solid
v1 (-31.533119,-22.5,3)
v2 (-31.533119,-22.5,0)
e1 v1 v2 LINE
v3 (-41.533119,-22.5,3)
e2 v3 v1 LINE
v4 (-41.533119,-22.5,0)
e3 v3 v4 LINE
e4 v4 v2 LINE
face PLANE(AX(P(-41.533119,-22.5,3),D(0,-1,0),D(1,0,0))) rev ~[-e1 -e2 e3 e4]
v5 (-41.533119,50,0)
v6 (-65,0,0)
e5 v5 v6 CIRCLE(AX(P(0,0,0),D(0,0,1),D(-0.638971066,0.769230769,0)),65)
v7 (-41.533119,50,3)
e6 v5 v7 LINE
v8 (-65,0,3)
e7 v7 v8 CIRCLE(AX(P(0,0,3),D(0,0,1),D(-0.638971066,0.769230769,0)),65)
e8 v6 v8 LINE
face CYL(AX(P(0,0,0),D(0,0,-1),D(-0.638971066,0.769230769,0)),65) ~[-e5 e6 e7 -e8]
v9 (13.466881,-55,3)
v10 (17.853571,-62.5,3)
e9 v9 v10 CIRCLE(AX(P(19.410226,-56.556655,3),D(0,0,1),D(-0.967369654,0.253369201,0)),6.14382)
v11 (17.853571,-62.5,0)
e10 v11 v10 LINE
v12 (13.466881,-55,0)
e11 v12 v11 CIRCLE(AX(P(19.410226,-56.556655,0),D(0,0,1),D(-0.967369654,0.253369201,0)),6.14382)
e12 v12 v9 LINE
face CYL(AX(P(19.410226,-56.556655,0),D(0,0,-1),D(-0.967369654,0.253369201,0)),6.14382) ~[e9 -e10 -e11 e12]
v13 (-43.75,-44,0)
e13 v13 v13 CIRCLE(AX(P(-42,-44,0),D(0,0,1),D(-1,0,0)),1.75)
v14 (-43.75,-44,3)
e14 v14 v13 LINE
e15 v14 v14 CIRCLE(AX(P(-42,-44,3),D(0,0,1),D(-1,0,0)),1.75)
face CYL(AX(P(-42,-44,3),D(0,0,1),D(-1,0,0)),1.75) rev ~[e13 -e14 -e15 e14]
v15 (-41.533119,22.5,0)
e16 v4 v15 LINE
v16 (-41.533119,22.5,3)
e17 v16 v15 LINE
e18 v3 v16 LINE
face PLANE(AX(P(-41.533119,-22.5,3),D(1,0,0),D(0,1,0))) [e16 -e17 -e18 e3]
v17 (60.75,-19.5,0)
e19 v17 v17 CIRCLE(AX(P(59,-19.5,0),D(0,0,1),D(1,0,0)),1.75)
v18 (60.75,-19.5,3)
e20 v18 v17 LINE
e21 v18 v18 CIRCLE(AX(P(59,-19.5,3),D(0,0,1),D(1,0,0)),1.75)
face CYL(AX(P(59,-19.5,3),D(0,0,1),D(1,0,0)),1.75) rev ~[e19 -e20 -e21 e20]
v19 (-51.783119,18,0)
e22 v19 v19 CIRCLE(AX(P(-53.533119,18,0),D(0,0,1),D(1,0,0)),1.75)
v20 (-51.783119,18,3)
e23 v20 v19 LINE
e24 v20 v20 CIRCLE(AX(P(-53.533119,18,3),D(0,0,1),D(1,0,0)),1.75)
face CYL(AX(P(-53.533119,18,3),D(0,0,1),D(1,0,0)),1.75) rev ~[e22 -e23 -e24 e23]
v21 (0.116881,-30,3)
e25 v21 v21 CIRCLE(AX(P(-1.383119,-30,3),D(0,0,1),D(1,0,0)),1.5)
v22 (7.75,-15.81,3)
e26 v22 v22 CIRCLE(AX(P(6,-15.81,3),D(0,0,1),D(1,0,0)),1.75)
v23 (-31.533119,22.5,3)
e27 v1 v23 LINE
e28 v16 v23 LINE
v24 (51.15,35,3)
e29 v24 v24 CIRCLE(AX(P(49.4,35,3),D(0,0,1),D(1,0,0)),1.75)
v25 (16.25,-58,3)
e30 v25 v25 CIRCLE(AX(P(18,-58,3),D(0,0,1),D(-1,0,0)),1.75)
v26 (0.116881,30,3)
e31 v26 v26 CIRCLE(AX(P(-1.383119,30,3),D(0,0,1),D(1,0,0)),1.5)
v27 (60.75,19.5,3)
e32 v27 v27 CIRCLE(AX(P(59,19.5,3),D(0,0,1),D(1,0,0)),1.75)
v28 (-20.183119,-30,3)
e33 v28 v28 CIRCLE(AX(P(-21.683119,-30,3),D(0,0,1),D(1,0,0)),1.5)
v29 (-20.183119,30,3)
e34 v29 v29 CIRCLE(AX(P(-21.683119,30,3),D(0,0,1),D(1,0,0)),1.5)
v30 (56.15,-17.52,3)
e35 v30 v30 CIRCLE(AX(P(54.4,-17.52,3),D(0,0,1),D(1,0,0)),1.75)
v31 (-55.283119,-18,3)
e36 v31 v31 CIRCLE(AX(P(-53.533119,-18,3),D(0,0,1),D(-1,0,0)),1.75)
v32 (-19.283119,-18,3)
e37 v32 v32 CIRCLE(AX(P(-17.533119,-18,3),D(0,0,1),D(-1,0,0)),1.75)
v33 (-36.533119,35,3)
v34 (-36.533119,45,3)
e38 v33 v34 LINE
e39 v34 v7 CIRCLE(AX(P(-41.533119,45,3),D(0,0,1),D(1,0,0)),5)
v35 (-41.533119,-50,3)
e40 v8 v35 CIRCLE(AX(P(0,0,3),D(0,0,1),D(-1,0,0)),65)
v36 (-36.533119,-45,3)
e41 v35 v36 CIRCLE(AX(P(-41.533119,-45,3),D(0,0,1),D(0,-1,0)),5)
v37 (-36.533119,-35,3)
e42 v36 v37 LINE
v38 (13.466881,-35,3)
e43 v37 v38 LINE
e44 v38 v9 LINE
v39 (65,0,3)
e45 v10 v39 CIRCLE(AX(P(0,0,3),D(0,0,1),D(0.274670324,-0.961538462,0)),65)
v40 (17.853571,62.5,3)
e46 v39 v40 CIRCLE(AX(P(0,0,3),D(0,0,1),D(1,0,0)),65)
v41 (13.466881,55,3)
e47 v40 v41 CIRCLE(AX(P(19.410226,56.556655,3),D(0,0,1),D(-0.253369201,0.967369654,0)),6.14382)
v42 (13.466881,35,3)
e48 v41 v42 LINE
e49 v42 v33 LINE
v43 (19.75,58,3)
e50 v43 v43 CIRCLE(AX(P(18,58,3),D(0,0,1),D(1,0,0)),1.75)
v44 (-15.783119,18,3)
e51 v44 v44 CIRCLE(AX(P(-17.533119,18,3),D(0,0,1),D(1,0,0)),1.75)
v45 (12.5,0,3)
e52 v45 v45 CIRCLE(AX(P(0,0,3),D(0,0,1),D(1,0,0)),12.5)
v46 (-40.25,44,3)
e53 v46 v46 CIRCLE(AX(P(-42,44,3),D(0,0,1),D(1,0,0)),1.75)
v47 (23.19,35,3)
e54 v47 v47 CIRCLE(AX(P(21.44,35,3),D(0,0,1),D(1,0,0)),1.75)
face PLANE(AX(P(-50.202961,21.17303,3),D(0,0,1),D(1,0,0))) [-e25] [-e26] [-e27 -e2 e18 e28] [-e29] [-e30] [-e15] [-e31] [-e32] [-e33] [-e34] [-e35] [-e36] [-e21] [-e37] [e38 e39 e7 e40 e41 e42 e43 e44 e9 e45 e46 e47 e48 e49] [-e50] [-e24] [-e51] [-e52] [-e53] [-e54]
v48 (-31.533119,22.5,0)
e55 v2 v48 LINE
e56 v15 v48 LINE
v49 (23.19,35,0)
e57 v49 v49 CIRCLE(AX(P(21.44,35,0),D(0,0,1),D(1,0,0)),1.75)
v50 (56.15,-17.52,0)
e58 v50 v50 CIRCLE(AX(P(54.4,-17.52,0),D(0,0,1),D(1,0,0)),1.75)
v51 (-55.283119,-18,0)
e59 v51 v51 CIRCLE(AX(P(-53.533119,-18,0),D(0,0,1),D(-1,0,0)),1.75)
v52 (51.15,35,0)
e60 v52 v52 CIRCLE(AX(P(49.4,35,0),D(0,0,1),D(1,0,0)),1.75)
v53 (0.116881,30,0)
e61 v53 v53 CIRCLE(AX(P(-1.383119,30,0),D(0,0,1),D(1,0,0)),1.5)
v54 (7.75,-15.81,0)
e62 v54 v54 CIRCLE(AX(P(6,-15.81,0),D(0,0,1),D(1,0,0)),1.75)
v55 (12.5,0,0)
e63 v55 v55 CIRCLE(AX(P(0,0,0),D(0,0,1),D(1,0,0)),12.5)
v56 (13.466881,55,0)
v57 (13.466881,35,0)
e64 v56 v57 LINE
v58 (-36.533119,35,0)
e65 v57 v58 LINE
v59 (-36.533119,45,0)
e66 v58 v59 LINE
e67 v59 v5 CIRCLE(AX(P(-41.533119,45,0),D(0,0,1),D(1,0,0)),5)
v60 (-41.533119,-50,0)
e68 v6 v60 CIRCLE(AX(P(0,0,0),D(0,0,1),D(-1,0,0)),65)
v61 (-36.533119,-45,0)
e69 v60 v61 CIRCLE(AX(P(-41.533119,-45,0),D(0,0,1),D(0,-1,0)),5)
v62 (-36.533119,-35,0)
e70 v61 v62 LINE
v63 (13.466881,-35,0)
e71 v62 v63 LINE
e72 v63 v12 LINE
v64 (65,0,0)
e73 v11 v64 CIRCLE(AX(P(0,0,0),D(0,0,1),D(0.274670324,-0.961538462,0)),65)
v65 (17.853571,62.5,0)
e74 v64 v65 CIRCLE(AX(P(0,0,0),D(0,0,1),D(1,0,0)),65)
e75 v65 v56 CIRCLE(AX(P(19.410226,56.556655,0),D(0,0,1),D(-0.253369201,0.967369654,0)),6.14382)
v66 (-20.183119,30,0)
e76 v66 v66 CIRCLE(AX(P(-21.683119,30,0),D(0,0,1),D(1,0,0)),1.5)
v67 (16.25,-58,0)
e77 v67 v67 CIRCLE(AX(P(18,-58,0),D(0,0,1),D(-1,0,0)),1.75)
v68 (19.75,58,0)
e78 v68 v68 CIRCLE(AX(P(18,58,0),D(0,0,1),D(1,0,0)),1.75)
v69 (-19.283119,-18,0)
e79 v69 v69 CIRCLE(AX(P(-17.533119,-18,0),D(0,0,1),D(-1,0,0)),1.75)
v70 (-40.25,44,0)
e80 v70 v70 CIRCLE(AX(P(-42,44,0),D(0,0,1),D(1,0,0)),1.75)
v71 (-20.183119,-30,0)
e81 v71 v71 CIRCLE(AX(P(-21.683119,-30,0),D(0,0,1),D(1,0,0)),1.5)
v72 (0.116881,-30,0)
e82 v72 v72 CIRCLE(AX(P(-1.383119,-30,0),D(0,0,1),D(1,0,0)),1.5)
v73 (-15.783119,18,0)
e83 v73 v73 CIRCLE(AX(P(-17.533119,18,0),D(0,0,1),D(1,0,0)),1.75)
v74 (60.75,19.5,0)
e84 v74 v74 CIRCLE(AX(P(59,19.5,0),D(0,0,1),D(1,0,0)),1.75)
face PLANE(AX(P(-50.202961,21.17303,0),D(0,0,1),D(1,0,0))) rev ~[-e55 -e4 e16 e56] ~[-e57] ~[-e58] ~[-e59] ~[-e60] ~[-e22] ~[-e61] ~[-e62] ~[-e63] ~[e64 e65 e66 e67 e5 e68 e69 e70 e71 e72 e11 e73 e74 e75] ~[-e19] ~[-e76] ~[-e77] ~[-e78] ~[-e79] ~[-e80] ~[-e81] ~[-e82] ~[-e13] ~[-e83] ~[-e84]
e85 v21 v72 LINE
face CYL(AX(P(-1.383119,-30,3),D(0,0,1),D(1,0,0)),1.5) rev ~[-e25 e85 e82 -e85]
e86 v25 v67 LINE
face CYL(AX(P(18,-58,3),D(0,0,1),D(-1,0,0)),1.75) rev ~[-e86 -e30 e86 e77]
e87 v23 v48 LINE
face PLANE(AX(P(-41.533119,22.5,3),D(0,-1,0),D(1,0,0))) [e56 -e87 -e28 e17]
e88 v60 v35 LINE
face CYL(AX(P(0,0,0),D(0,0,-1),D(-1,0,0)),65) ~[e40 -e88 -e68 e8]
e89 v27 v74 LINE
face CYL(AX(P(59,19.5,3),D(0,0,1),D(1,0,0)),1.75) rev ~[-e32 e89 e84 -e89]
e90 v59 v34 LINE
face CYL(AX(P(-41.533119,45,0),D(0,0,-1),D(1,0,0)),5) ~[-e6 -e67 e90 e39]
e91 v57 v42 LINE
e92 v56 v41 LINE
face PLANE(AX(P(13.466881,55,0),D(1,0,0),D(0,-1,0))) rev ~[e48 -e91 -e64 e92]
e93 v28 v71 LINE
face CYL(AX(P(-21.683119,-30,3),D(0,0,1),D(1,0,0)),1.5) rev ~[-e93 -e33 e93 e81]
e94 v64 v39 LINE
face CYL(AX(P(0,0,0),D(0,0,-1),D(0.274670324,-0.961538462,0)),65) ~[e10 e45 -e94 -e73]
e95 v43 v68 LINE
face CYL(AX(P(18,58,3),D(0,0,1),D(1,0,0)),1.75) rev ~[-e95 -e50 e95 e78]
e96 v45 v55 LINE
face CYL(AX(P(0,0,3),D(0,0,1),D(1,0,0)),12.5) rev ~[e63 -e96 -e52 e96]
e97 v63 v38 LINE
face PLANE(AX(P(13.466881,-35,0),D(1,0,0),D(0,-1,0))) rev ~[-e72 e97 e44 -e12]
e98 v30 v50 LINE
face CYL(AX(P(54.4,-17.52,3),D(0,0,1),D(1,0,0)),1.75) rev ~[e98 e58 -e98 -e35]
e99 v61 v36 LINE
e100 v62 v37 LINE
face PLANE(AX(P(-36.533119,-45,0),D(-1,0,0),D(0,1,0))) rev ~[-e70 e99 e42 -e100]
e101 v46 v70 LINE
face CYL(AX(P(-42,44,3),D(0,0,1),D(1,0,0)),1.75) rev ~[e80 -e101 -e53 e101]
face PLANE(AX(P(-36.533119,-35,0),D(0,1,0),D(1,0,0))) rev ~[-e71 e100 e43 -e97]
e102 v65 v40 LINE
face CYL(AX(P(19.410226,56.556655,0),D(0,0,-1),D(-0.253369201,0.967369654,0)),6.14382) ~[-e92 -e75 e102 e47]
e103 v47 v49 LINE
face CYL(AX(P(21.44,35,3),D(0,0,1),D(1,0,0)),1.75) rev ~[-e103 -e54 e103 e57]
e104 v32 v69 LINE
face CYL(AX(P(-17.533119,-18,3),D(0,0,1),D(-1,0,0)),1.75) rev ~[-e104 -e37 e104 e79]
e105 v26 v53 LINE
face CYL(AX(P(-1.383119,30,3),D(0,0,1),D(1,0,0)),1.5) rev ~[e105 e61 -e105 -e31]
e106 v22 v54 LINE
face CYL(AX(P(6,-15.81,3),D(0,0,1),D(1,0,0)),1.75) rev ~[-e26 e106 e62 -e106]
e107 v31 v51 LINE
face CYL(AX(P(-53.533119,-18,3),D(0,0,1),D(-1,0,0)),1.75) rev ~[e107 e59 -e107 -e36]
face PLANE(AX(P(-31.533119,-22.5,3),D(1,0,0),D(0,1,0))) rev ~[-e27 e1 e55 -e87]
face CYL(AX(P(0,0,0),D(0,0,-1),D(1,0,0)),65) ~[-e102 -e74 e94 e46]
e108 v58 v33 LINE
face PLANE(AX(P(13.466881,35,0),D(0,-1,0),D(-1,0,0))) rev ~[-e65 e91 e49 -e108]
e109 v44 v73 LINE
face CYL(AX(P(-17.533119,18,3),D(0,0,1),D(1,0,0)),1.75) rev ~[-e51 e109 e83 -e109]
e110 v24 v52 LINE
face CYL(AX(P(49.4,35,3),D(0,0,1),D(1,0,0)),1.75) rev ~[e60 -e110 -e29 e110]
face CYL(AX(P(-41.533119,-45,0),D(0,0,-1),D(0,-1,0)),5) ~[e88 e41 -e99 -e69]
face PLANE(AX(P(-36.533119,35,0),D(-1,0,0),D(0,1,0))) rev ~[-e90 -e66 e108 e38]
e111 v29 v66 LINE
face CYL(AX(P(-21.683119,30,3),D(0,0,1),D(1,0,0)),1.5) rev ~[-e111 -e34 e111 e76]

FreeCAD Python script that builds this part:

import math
import FreeCAD as App
import Part
import Sketcher

doc = App.newDocument("Part")
body = doc.addObject("PartDesign::Body", "Body")

# Sketch on XY plane
sketch1 = doc.addObject("Sketcher::SketchObject", "Sketch")
body.addObject(sketch1)
sketch1.AttachmentSupport = (doc.XY_Plane, [""])
sketch1.MapMode = "FlatFace"
sketch1.addGeometry([
    Part.LineSegment(App.Vector(-37, 35, 0), App.Vector(-37, 45, 0)),  # 0
    Part.ArcOfCircle(Part.Circle(App.Vector(-42, 45, 0), App.Vector(0, 0, 1), 5), math.radians(0), math.radians(90)),  # 1
    Part.ArcOfCircle(Part.Circle(App.Vector(0, 0, 0), App.Vector(0, 0, 1), 65), math.radians(130), math.radians(180)),  # 2
    Part.ArcOfCircle(Part.Circle(App.Vector(0, 0, 0), App.Vector(0, 0, 1), 65), math.radians(-180), math.radians(-130)),  # 3
    Part.ArcOfCircle(Part.Circle(App.Vector(-42, -45, 0), App.Vector(0, 0, 1), 5), math.radians(-90), math.radians(0)),  # 4
    Part.LineSegment(App.Vector(-37, -45, 0), App.Vector(-37, -35, 0)),  # 5
    Part.LineSegment(App.Vector(-37, -35, 0), App.Vector(13, -35, 0)),  # 6
    Part.LineSegment(App.Vector(13, -35, 0), App.Vector(13, -55, 0)),  # 7
    Part.ArcOfCircle(Part.Circle(App.Vector(19, -57, 0), App.Vector(0, 0, 1), 6), math.radians(165), math.radians(255)),  # 8
    Part.ArcOfCircle(Part.Circle(App.Vector(0, 0, 0), App.Vector(0, 0, 1), 65), math.radians(-74), math.radians(0)),  # 9
    Part.ArcOfCircle(Part.Circle(App.Vector(0, 0, 0), App.Vector(0, 0, 1), 65), math.radians(0), math.radians(74)),  # 10
    Part.ArcOfCircle(Part.Circle(App.Vector(19, 57, 0), App.Vector(0, 0, 1), 6), math.radians(105), math.radians(195)),  # 11
    Part.LineSegment(App.Vector(13, 55, 0), App.Vector(13, 35, 0)),  # 12
    Part.LineSegment(App.Vector(13, 35, 0), App.Vector(-37, 35, 0)),  # 13
], False)
sketch1.addConstraint([
    Sketcher.Constraint("Tangent", 0, 2, 1, 1),
    Sketcher.Constraint("Coincident", 1, 2, 2, 1),
    Sketcher.Constraint("Tangent", 2, 2, 3, 1),
    Sketcher.Constraint("Coincident", 3, 2, 4, 1),
    Sketcher.Constraint("Tangent", 4, 2, 5, 1),
    Sketcher.Constraint("Coincident", 5, 2, 6, 1),
    Sketcher.Constraint("Coincident", 6, 2, 7, 1),
    Sketcher.Constraint("Coincident", 7, 2, 8, 1),
    Sketcher.Constraint("Coincident", 8, 2, 9, 1),
    Sketcher.Constraint("Tangent", 9, 2, 10, 1),
    Sketcher.Constraint("Coincident", 10, 2, 11, 1),
    Sketcher.Constraint("Coincident", 11, 2, 12, 1),
    Sketcher.Constraint("Coincident", 12, 2, 13, 1),
    Sketcher.Constraint("Coincident", 13, 2, 0, 1),
    Sketcher.Constraint("Vertical", 0),
    Sketcher.Constraint("Vertical", 5),
    Sketcher.Constraint("Horizontal", 6),
    Sketcher.Constraint("Vertical", 7),
    Sketcher.Constraint("Vertical", 12),
    Sketcher.Constraint("Horizontal", 13),
    Sketcher.Constraint("Coincident", 2, 3, -1, 1),
    Sketcher.Constraint("Coincident", 9, 3, -1, 1),
    Sketcher.Constraint("Equal", 2, 3),
    Sketcher.Constraint("Equal", 1, 4),
    Sketcher.Constraint("Equal", 3, 9),
    Sketcher.Constraint("Equal", 9, 10),
    Sketcher.Constraint("Equal", 8, 11),
    Sketcher.Constraint("Symmetric", 1, 3, 4, 3, -1),
    Sketcher.Constraint("Symmetric", 8, 3, 11, 3, -1),
    Sketcher.Constraint("Symmetric", 6, 2, 12, 2, -1),
    Sketcher.Constraint("PointOnObject", 2, 2, -1),
    Sketcher.Constraint("PointOnObject", 9, 2, -1),
    Sketcher.Constraint("Vertical", 4, 3, 1, 2),
    Sketcher.Constraint("Radius", 1, 5.0),
    Sketcher.Constraint("Radius", 2, 65.0),
    Sketcher.Constraint("DistanceX", 6, 1, 6, 2, 50.0),
    Sketcher.Constraint("DistanceY", 0, 1, 0, 2, 10.0),
    Sketcher.Constraint("DistanceY", 7, 2, 7, 1, 20.0),
    Sketcher.Constraint("DistanceY", -1, 1, 1, 3, 45.0),
    Sketcher.Constraint("DistanceY", 8, 2, -1, 1, 62.5),
    Sketcher.Constraint("Radius", 8, 6.14382),
])
pad1 = doc.addObject("PartDesign::Pad", "Pad")
body.addObject(pad1)
pad1.Profile = sketch1
pad1.Length = 3

# Sketch on XY plane
sketch2 = doc.addObject("Sketcher::SketchObject", "Sketch001")
body.addObject(sketch2)
sketch2.AttachmentSupport = (doc.XY_Plane, [""])
sketch2.MapMode = "FlatFace"
sketch2.AttachmentOffset = App.Placement(App.Vector(0, 0, 3), App.Rotation())
sketch2.addGeometry([
    Part.Circle(App.Vector(0, 0, 0), App.Vector(0, 0, 1), 12),  # 0
    Part.LineSegment(App.Vector(-42, 22, 0), App.Vector(-42, -22, 0)),  # 1
    Part.LineSegment(App.Vector(-42, -22, 0), App.Vector(-32, -22, 0)),  # 2
    Part.LineSegment(App.Vector(-32, -22, 0), App.Vector(-32, 22, 0)),  # 3
    Part.LineSegment(App.Vector(-32, 22, 0), App.Vector(-42, 22, 0)),  # 4
], False)
sketch2.addConstraint([
    Sketcher.Constraint("Coincident", 1, 2, 2, 1),
    Sketcher.Constraint("Coincident", 2, 2, 3, 1),
    Sketcher.Constraint("Coincident", 3, 2, 4, 1),
    Sketcher.Constraint("Coincident", 4, 2, 1, 1),
    Sketcher.Constraint("Vertical", 1),
    Sketcher.Constraint("Horizontal", 2),
    Sketcher.Constraint("Vertical", 3),
    Sketcher.Constraint("Horizontal", 4),
    Sketcher.Constraint("Coincident", 0, 3, -1, 1),
    Sketcher.Constraint("Diameter", 0, 25.0),
    Sketcher.Constraint("DistanceX", 2, 1, 2, 2, 10.0),
    Sketcher.Constraint("DistanceY", 1, 2, 1, 1, 45.0),
    Sketcher.Constraint("DistanceY", 1, 2, -1, 1, 22.5),
    Sketcher.Constraint("DistanceX", 1, 2, -1, 1, 41.533119),
])
pocket1 = doc.addObject("PartDesign::Pocket", "Pocket")
body.addObject(pocket1)
pocket1.Profile = sketch2
pocket1.Length = 3

# Sketch on XY plane
sketch3 = doc.addObject("Sketcher::SketchObject", "Sketch002")
body.addObject(sketch3)
sketch3.AttachmentSupport = (doc.XY_Plane, [""])
sketch3.MapMode = "FlatFace"
sketch3.AttachmentOffset = App.Placement(App.Vector(0, 0, 3), App.Rotation())
sketch3.addGeometry([
    Part.Circle(App.Vector(-53.5, 18, 0), App.Vector(0, 0, 1), 1.8),
    Part.Circle(App.Vector(-17.5, 18, 0), App.Vector(0, 0, 1), 1.8),
    Part.Circle(App.Vector(-17.5, -18, 0), App.Vector(0, 0, 1), 1.8),
    Part.Circle(App.Vector(-53.5, -18, 0), App.Vector(0, 0, 1), 1.8),
], False)
sketch3.addConstraint([
    Sketcher.Constraint("Equal", 0, 1),
    Sketcher.Constraint("Equal", 1, 2),
    Sketcher.Constraint("Equal", 2, 3),
    Sketcher.Constraint("Symmetric", 1, 3, 2, 3, -1),
    Sketcher.Constraint("Symmetric", 0, 3, 3, 3, -1),
    Sketcher.Constraint("Horizontal", 0, 3, 1, 3),
    Sketcher.Constraint("Diameter", 0, 3.5),
    Sketcher.Constraint("DistanceY", -1, 1, 0, 3, 18.0),
    Sketcher.Constraint("DistanceX", 0, 3, 1, 3, 36.0),
    Sketcher.Constraint("DistanceX", 0, 3, -1, 1, 53.533119),
])
pocket2 = doc.addObject("PartDesign::Pocket", "Pocket001")
body.addObject(pocket2)
pocket2.Profile = sketch3
pocket2.Length = 3

# Sketch on XY plane
sketch4 = doc.addObject("Sketcher::SketchObject", "Sketch003")
body.addObject(sketch4)
sketch4.AttachmentSupport = (doc.XY_Plane, [""])
sketch4.MapMode = "FlatFace"
sketch4.AttachmentOffset = App.Placement(App.Vector(0, 0, 3), App.Rotation())
sketch4.addGeometry([
    Part.Circle(App.Vector(-42, 44, 0), App.Vector(0, 0, 1), 1.8),
    Part.Circle(App.Vector(18, 58, 0), App.Vector(0, 0, 1), 1.8),
    Part.Circle(App.Vector(18, -58, 0), App.Vector(0, 0, 1), 1.8),
    Part.Circle(App.Vector(-42, -44, 0), App.Vector(0, 0, 1), 1.8),
], False)
sketch4.addConstraint([
    Sketcher.Constraint("Equal", 0, 1),
    Sketcher.Constraint("Equal", 1, 2),
    Sketcher.Constraint("Equal", 2, 3),
    Sketcher.Constraint("Symmetric", 1, 3, 2, 3, -1),
    Sketcher.Constraint("Symmetric", 0, 3, 3, 3, -1),
    Sketcher.Constraint("Diameter", 0, 3.5),
    Sketcher.Constraint("DistanceX", 0, 3, -1, 1, 42.0),
    Sketcher.Constraint("DistanceY", -1, 1, 0, 3, 44.0),
    Sketcher.Constraint("DistanceX", -1, 1, 1, 3, 18.0),
    Sketcher.Constraint("DistanceY", -1, 1, 1, 3, 58.0),
])
pocket3 = doc.addObject("PartDesign::Pocket", "Pocket002")
body.addObject(pocket3)
pocket3.Profile = sketch4
pocket3.Length = 3

# Sketch on XY plane
sketch5 = doc.addObject("Sketcher::SketchObject", "Sketch004")
body.addObject(sketch5)
sketch5.AttachmentSupport = (doc.XY_Plane, [""])
sketch5.MapMode = "FlatFace"
sketch5.AttachmentOffset = App.Placement(App.Vector(0, 0, 3), App.Rotation())
sketch5.addGeometry([
    Part.Circle(App.Vector(6, -15.8, 0), App.Vector(0, 0, 1), 1.8),
    Part.Circle(App.Vector(54.4, -17.5, 0), App.Vector(0, 0, 1), 1.8),
    Part.Circle(App.Vector(49.4, 35, 0), App.Vector(0, 0, 1), 1.8),
    Part.Circle(App.Vector(21.4, 35, 0), App.Vector(0, 0, 1), 1.8),
], False)
sketch5.addConstraint([
    Sketcher.Constraint("Equal", 0, 1),
    Sketcher.Constraint("Equal", 1, 2),
    Sketcher.Constraint("Equal", 2, 3),
    Sketcher.Constraint("Horizontal", 2, 3, 3, 3),
    Sketcher.Constraint("Diameter", 0, 3.5),
    Sketcher.Constraint("DistanceX", -1, 1, 0, 3, 6.0),
    Sketcher.Constraint("DistanceY", -1, 1, 2, 3, 35.0),
    Sketcher.Constraint("DistanceX", 2, 3, 1, 3, 5.0),
    Sketcher.Constraint("DistanceX", -1, 1, 1, 3, 54.4),
    Sketcher.Constraint("DistanceY", 0, 3, -1, 1, 15.81),
    Sketcher.Constraint("DistanceY", 1, 3, -1, 1, 17.52),
    Sketcher.Constraint("DistanceX", -1, 1, 3, 3, 21.44),
])
pocket4 = doc.addObject("PartDesign::Pocket", "Pocket003")
body.addObject(pocket4)
pocket4.Profile = sketch5
pocket4.Length = 3

# Sketch on XY plane
sketch6 = doc.addObject("Sketcher::SketchObject", "Sketch005")
body.addObject(sketch6)
sketch6.AttachmentSupport = (doc.XY_Plane, [""])
sketch6.MapMode = "FlatFace"
sketch6.AttachmentOffset = App.Placement(App.Vector(0, 0, 3), App.Rotation())
sketch6.addGeometry([
    Part.Circle(App.Vector(-21.7, -30, 0), App.Vector(0, 0, 1), 1.5),
    Part.Circle(App.Vector(-1.4, -30, 0), App.Vector(0, 0, 1), 1.5),
    Part.Circle(App.Vector(-1.4, 30, 0), App.Vector(0, 0, 1), 1.5),
    Part.Circle(App.Vector(-21.7, 30, 0), App.Vector(0, 0, 1), 1.5),
], False)
sketch6.addConstraint([
    Sketcher.Constraint("Equal", 0, 1),
    Sketcher.Constraint("Equal", 1, 2),
    Sketcher.Constraint("Equal", 2, 3),
    Sketcher.Constraint("Symmetric", 1, 3, 2, 3, -1),
    Sketcher.Constraint("Symmetric", 0, 3, 3, 3, -1),
    Sketcher.Constraint("Horizontal", 0, 3, 1, 3),
    Sketcher.Constraint("Diameter", 0, 3.0),
    Sketcher.Constraint("DistanceY", 0, 3, -1, 1, 30.0),
    Sketcher.Constraint("DistanceX", 0, 3, 1, 3, 20.3),
    Sketcher.Constraint("DistanceX", 0, 3, -1, 1, 21.683119),
])
pocket5 = doc.addObject("PartDesign::Pocket", "Pocket004")
body.addObject(pocket5)
pocket5.Profile = sketch6
pocket5.Length = 10

# Sketch on XY plane
sketch7 = doc.addObject("Sketcher::SketchObject", "Sketch006")
body.addObject(sketch7)
sketch7.AttachmentSupport = (doc.XY_Plane, [""])
sketch7.MapMode = "FlatFace"
sketch7.AttachmentOffset = App.Placement(App.Vector(0, 0, 3), App.Rotation())
sketch7.addGeometry([
    Part.Circle(App.Vector(59, 19.5, 0), App.Vector(0, 0, 1), 1.8),
    Part.Circle(App.Vector(59, -19.5, 0), App.Vector(0, 0, 1), 1.8),
], False)
sketch7.addConstraint([
    Sketcher.Constraint("Equal", 0, 1),
    Sketcher.Constraint("Symmetric", 0, 3, 1, 3, -1),
    Sketcher.Constraint("Diameter", 0, 3.5),
    Sketcher.Constraint("DistanceX", -1, 1, 0, 3, 59.0),
    Sketcher.Constraint("DistanceY", 1, 3, 0, 3, 39.0),
])
pocket6 = doc.addObject("PartDesign::Pocket", "Pocket005")
body.addObject(pocket6)
pocket6.Profile = sketch7
pocket6.Length = 10

doc.recompute()
